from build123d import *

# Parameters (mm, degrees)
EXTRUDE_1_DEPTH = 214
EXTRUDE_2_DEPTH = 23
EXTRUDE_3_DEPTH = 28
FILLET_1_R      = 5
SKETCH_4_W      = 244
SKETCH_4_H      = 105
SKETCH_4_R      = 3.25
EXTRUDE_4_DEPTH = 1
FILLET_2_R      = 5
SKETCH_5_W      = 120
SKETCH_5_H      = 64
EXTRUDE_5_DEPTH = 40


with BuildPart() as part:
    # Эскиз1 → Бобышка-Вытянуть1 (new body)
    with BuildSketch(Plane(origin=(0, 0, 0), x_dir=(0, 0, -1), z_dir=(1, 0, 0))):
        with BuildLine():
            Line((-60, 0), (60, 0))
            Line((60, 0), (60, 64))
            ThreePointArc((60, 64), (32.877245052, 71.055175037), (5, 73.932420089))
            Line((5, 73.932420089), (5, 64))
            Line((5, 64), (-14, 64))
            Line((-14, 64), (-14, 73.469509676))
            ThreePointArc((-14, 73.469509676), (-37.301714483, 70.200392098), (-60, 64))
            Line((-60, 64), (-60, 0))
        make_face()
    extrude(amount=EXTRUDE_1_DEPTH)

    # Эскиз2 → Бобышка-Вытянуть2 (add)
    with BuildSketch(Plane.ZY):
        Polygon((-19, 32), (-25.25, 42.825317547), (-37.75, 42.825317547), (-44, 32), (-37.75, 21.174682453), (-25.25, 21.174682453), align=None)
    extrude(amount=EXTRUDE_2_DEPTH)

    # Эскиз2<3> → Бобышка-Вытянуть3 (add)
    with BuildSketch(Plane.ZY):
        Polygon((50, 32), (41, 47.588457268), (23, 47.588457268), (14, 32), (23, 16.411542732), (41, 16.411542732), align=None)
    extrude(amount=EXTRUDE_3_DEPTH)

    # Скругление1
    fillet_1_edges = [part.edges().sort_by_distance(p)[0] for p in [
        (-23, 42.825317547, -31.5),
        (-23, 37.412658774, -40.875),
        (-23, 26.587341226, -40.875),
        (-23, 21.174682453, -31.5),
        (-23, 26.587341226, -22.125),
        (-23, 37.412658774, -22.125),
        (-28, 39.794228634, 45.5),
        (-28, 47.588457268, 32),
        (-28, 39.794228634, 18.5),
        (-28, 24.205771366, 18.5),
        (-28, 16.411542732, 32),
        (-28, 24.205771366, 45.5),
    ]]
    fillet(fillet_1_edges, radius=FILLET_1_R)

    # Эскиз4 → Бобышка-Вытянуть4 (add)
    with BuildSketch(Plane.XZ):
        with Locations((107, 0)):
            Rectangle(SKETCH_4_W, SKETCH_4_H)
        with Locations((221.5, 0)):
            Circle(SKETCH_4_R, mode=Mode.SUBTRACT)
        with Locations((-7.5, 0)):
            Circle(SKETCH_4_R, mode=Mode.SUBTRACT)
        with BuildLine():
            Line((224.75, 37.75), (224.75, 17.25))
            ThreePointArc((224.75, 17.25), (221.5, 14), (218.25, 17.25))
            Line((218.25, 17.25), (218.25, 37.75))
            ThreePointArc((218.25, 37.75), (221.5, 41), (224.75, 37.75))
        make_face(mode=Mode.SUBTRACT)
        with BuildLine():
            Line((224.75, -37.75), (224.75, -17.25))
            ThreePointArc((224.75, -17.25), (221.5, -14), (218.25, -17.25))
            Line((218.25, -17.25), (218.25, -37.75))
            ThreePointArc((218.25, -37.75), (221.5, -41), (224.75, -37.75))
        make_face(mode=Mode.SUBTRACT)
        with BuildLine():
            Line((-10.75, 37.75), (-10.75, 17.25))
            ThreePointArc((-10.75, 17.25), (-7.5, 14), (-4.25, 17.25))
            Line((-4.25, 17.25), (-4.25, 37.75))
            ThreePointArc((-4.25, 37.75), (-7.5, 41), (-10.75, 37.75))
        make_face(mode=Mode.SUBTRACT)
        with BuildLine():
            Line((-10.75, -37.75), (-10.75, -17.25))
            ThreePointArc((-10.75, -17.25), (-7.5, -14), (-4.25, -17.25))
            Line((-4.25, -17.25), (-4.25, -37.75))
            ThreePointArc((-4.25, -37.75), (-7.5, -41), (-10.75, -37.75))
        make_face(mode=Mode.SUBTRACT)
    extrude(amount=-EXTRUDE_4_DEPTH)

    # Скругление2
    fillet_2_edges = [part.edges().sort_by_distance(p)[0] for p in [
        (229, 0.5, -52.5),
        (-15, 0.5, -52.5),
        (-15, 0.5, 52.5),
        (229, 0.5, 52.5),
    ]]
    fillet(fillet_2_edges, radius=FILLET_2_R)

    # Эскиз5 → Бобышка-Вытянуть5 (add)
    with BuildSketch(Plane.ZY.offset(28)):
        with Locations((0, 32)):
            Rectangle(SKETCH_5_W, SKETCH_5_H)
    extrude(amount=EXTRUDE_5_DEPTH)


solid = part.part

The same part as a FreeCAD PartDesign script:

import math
import FreeCAD as App
import Part
import Sketcher
from FreeCAD import Vector
Q = App.Units.Quantity


def edges_at(feature, points):
    """Names of the edges that pass closest to the given points."""
    edges = feature.Shape.Edges
    near = lambda p: min(range(len(edges)), key=lambda i: edges[i].distToShape(Part.Vertex(*p))[0])
    return sorted({f"Edge{near(p) + 1}" for p in points})

doc = App.newDocument("Part")
body = doc.addObject("PartDesign::Body", "Body")

# Sketch on YZ plane
sketch1 = doc.addObject("Sketcher::SketchObject", "Sketch")
body.addObject(sketch1)
sketch1.AttachmentSupport = (doc.YZ_Plane, [""])
sketch1.MapMode = "FlatFace"
sketch1.addGeometry([
    Part.LineSegment(Vector(0, 60, 0), Vector(0, -60, 0)),  # 0
    Part.LineSegment(Vector(0, -60, 0), Vector(64, -60, 0)),  # 1
    Part.ArcOfCircle(Part.Circle(Vector(-111, 0, 0), Vector(0, 0, 1), 185), math.radians(-18.924644), math.radians(-1.548723)),  # 2
    Part.LineSegment(Vector(73.93242, -5, 0), Vector(64, -5, 0)),  # 3
    Part.LineSegment(Vector(64, -5, 0), Vector(64, 14, 0)),  # 4
    Part.LineSegment(Vector(64, 14, 0), Vector(73.46951, 14, 0)),  # 5
    Part.ArcOfCircle(Part.Circle(Vector(-111, 0, 0), Vector(0, 0, 1), 185), math.radians(4.340046), math.radians(18.924644)),  # 6
    Part.LineSegment(Vector(64, 60, 0), Vector(0, 60, 0)),  # 7
], False)
sketch1.addConstraint([
    Sketcher.Constraint("Coincident", 0, 2, 1, 1),
    Sketcher.Constraint("Coincident", 1, 2, 2, 1),
    Sketcher.Constraint("Coincident", 2, 2, 3, 1),
    Sketcher.Constraint("Coincident", 3, 2, 4, 1),
    Sketcher.Constraint("Coincident", 4, 2, 5, 1),
    Sketcher.Constraint("Coincident", 5, 2, 6, 1),
    Sketcher.Constraint("Coincident", 6, 2, 7, 1),
    Sketcher.Constraint("Coincident", 7, 2, 0, 1),
    Sketcher.Constraint("Vertical", 0),
    Sketcher.Constraint("Horizontal", 1),
    Sketcher.Constraint("Horizontal", 3),
    Sketcher.Constraint("Vertical", 4),
    Sketcher.Constraint("Horizontal", 5),
    Sketcher.Constraint("Horizontal", 7),
    Sketcher.Constraint("Coincident", 6, 3, 2, 3),
    Sketcher.Constraint("Equal", 2, 6),
    Sketcher.Constraint("Symmetric", 0, 2, 7, 2, -1, 1),
    Sketcher.Constraint("PointOnObject", 2, 3, -1),
    Sketcher.Constraint("Vertical", 1, 2, 3, 2),
    Sketcher.Constraint("Radius", 2, 185.0),
    Sketcher.Constraint("DistanceX", 1, 1, 1, 2, 64.0),
    Sketcher.Constraint("DistanceY", 0, 2, 0, 1, 120.0),
    Sketcher.Constraint("DistanceY", 4, 1, 4, 2, 19.0),
    Sketcher.Constraint("DistanceY", 2, 2, -1, 1, 5.0),
])
pad1 = doc.addObject("PartDesign::Pad", "Pad")
body.addObject(pad1)
pad1.Profile = sketch1
pad1.Length = 214

# Sketch on YZ plane
sketch2 = doc.addObject("Sketcher::SketchObject", "Sketch001")
body.addObject(sketch2)
sketch2.AttachmentSupport = (doc.YZ_Plane, [""])
sketch2.MapMode = "FlatFace"
sketch2.addGeometry([
    Part.LineSegment(Vector(32, -19, 0), Vector(42.825318, -25.25, 0)),  # 0
    Part.LineSegment(Vector(42.825318, -25.25, 0), Vector(42.825318, -37.75, 0)),  # 1
    Part.LineSegment(Vector(42.825318, -37.75, 0), Vector(32, -44, 0)),  # 2
    Part.LineSegment(Vector(32, -44, 0), Vector(21.174682, -37.75, 0)),  # 3
    Part.LineSegment(Vector(21.174682, -37.75, 0), Vector(21.174682, -25.25, 0)),  # 4
    Part.LineSegment(Vector(21.174682, -25.25, 0), Vector(32, -19, 0)),  # 5
], False)
sketch2.addConstraint([
    Sketcher.Constraint("Coincident", 0, 2, 1, 1),
    Sketcher.Constraint("Coincident", 1, 2, 2, 1),
    Sketcher.Constraint("Coincident", 2, 2, 3, 1),
    Sketcher.Constraint("Coincident", 3, 2, 4, 1),
    Sketcher.Constraint("Coincident", 4, 2, 5, 1),
    Sketcher.Constraint("Coincident", 5, 2, 0, 1),
    Sketcher.Constraint("Vertical", 1),
    Sketcher.Constraint("Vertical", 4),
    Sketcher.Constraint("Parallel", 0, 3),
    Sketcher.Constraint("Parallel", 2, 5),
    Sketcher.Constraint("Horizontal", 1, 2, 3, 2),
    Sketcher.Constraint("Horizontal", 0, 2, 4, 2),
    Sketcher.Constraint("Vertical", 2, 2, 5, 2),
    Sketcher.Constraint("Angle", 0, Q("-30 deg")),
    Sketcher.Constraint("DistanceY", 1, 2, 1, 1, 12.5),
    Sketcher.Constraint("DistanceX", -1, 1, 2, 2, 32.0),
    Sketcher.Constraint("DistanceY", 2, 2, -1, 1, 44.0),
    Sketcher.Constraint("DistanceY", 5, 2, -1, 1, 19.0),
])
pad2 = doc.addObject("PartDesign::Pad", "Pad001")
body.addObject(pad2)
pad2.Profile = sketch2
pad2.Length = 23
pad2.Reversed = True

# Sketch on YZ plane
sketch3 = doc.addObject("Sketcher::SketchObject", "Sketch002")
body.addObject(sketch3)
sketch3.AttachmentSupport = (doc.YZ_Plane, [""])
sketch3.MapMode = "FlatFace"
sketch3.addGeometry([
    Part.LineSegment(Vector(32, 50, 0), Vector(47.588457, 41, 0)),  # 0
    Part.LineSegment(Vector(47.588457, 41, 0), Vector(47.588457, 23, 0)),  # 1
    Part.LineSegment(Vector(47.588457, 23, 0), Vector(32, 14, 0)),  # 2
    Part.LineSegment(Vector(32, 14, 0), Vector(16.411543, 23, 0)),  # 3
    Part.LineSegment(Vector(16.411543, 23, 0), Vector(16.411543, 41, 0)),  # 4
    Part.LineSegment(Vector(16.411543, 41, 0), Vector(32, 50, 0)),  # 5
], False)
sketch3.addConstraint([
    Sketcher.Constraint("Coincident", 0, 2, 1, 1),
    Sketcher.Constraint("Coincident", 1, 2, 2, 1),
    Sketcher.Constraint("Coincident", 2, 2, 3, 1),
    Sketcher.Constraint("Coincident", 3, 2, 4, 1),
    Sketcher.Constraint("Coincident", 4, 2, 5, 1),
    Sketcher.Constraint("Coincident", 5, 2, 0, 1),
    Sketcher.Constraint("Vertical", 1),
    Sketcher.Constraint("Vertical", 4),
    Sketcher.Constraint("Parallel", 0, 3),
    Sketcher.Constraint("Parallel", 2, 5),
    Sketcher.Constraint("Horizontal", 1, 2, 3, 2),
    Sketcher.Constraint("Horizontal", 0, 2, 4, 2),
    Sketcher.Constraint("Vertical", 2, 2, 5, 2),
    Sketcher.Constraint("DistanceY", 1, 2, 1, 1, 18.0),
    Sketcher.Constraint("Angle", 0, Q("-30 deg")),
    Sketcher.Constraint("Distance", 0, 18.0),
    Sketcher.Constraint("DistanceY", -1, 1, 0, 2, 41.0),
    Sketcher.Constraint("DistanceX", -1, 1, 2, 2, 32.0),
])
pad3 = doc.addObject("PartDesign::Pad", "Pad002")
body.addObject(pad3)
pad3.Profile = sketch3
pad3.Length = 28
pad3.Reversed = True
doc.recompute()

fillet = doc.addObject("PartDesign::Fillet", "Fillet")
body.addObject(fillet)
fillet.Base = (pad3, edges_at(pad3, [
    (-23, 42.825, -31.5),
    (-23, 37.413, -40.875),
    (-23, 26.587, -40.875),
    (-23, 21.175, -31.5),
    (-23, 26.587, -22.125),
    (-23, 37.413, -22.125),
    (-28, 39.794, 45.5),
    (-28, 47.588, 32),
    (-28, 39.794, 18.5),
    (-28, 24.206, 18.5),
    (-28, 16.412, 32),
    (-28, 24.206, 45.5),
]))
fillet.Radius = 5

# Sketch on XZ plane
sketch4 = doc.addObject("Sketcher::SketchObject", "Sketch003")
body.addObject(sketch4)
sketch4.AttachmentSupport = (doc.XZ_Plane, [""])
sketch4.MapMode = "FlatFace"
sketch4.addGeometry([
    Part.LineSegment(Vector(-15, 52.5, 0), Vector(-15, -52.5, 0)),  # 0
    Part.LineSegment(Vector(-15, -52.5, 0), Vector(229, -52.5, 0)),  # 1
    Part.LineSegment(Vector(229, -52.5, 0), Vector(229, 52.5, 0)),  # 2
    Part.LineSegment(Vector(229, 52.5, 0), Vector(-15, 52.5, 0)),  # 3
    Part.ArcOfCircle(Part.Circle(Vector(-7.5, -37.75, 0), Vector(0, 0, 1), 3.25), math.radians(180), math.radians(360)),  # 4
    Part.LineSegment(Vector(-10.75, -37.75, 0), Vector(-10.75, -17.25, 0)),  # 5
    Part.ArcOfCircle(Part.Circle(Vector(-7.5, -17.25, 0), Vector(0, 0, 1), 3.25), math.radians(0), math.radians(180)),  # 6
    Part.LineSegment(Vector(-4.25, -17.25, 0), Vector(-4.25, -37.75, 0)),  # 7
    Part.LineSegment(Vector(224.75, -17.25, 0), Vector(224.75, -37.75, 0)),  # 8
    Part.ArcOfCircle(Part.Circle(Vector(221.5, -37.75, 0), Vector(0, 0, 1), 3.25), math.radians(180), math.radians(360)),  # 9
    Part.LineSegment(Vector(218.25, -37.75, 0), Vector(218.25, -17.25, 0)),  # 10
    Part.ArcOfCircle(Part.Circle(Vector(221.5, -17.25, 0), Vector(0, 0, 1), 3.25), math.radians(0), math.radians(180)),  # 11
    Part.Circle(Vector(-7.5, 0, 0), Vector(0, 0, 1), 3.25),  # 12
    Part.LineSegment(Vector(-10.75, 17.25, 0), Vector(-10.75, 37.75, 0)),  # 13
    Part.ArcOfCircle(Part.Circle(Vector(-7.5, 37.75, 0), Vector(0, 0, 1), 3.25), math.radians(0), math.radians(180)),  # 14
    Part.LineSegment(Vector(-4.25, 37.75, 0), Vector(-4.25, 17.25, 0)),  # 15
    Part.ArcOfCircle(Part.Circle(Vector(-7.5, 17.25, 0), Vector(0, 0, 1), 3.25), math.radians(180), math.radians(360)),  # 16
    Part.Circle(Vector(221.5, 0, 0), Vector(0, 0, 1), 3.25),  # 17
    Part.ArcOfCircle(Part.Circle(Vector(221.5, 37.75, 0), Vector(0, 0, 1), 3.25), math.radians(0), math.radians(180)),  # 18
    Part.LineSegment(Vector(224.75, 37.75, 0), Vector(224.75, 17.25, 0)),  # 19
    Part.ArcOfCircle(Part.Circle(Vector(221.5, 17.25, 0), Vector(0, 0, 1), 3.25), math.radians(180), math.radians(360)),  # 20
    Part.LineSegment(Vector(218.25, 17.25, 0), Vector(218.25, 37.75, 0)),  # 21
], False)
sketch4.addConstraint([
    Sketcher.Constraint("Coincident", 0, 2, 1, 1),
    Sketcher.Constraint("Coincident", 1, 2, 2, 1),
    Sketcher.Constraint("Coincident", 2, 2, 3, 1),
    Sketcher.Constraint("Coincident", 3, 2, 0, 1),
    Sketcher.Constraint("Tangent", 4, 1, 5, 1),
    Sketcher.Constraint("Tangent", 5, 2, 6, 2),
    Sketcher.Constraint("Tangent", 6, 1, 7, 1),
    Sketcher.Constraint("Tangent", 7, 2, 4, 2),
    Sketcher.Constraint("Tangent", 8, 2, 9, 2),
    Sketcher.Constraint("Tangent", 9, 1, 10, 1),
    Sketcher.Constraint("Tangent", 10, 2, 11, 2),
    Sketcher.Constraint("Tangent", 11, 1, 8, 1),
    Sketcher.Constraint("Tangent", 13, 2, 14, 2),
    Sketcher.Constraint("Tangent", 14, 1, 15, 1),
    Sketcher.Constraint("Tangent", 15, 2, 16, 2),
    Sketcher.Constraint("Tangent", 16, 1, 13, 1),
    Sketcher.Constraint("Tangent", 18, 1, 19, 1),
    Sketcher.Constraint("Tangent", 19, 2, 20, 2),
    Sketcher.Constraint("Tangent", 20, 1, 21, 1),
    Sketcher.Constraint("Tangent", 21, 2, 18, 2),
    Sketcher.Constraint("Vertical", 0),
    Sketcher.Constraint("Horizontal", 1),
    Sketcher.Constraint("Vertical", 2),
    Sketcher.Constraint("Horizontal", 3),
    Sketcher.Constraint("Vertical", 5),
    Sketcher.Constraint("Vertical", 7),
    Sketcher.Constraint("Vertical", 8),
    Sketcher.Constraint("Vertical", 10),
    Sketcher.Constraint("Vertical", 13),
    Sketcher.Constraint("Vertical", 15),
    Sketcher.Constraint("Vertical", 19),
    Sketcher.Constraint("Vertical", 21),
    Sketcher.Constraint("Equal", 6, 9),
    Sketcher.Constraint("Equal", 11, 12),
    Sketcher.Constraint("Equal", 12, 14),
    Sketcher.Constraint("Equal", 16, 17),
    Sketcher.Constraint("Equal", 17, 18),
    Sketcher.Constraint("Symmetric", 4, 3, 14, 3, -1),
    Sketcher.Constraint("Symmetric", 9, 3, 18, 3, -1),
    Sketcher.Constraint("PointOnObject", 12, 3, -1),
    Sketcher.Constraint("PointOnObject", 17, 3, -1),
    Sketcher.Constraint("Horizontal", 4, 3, 9, 3),
    Sketcher.Constraint("Horizontal", 6, 3, 11, 3),
    Sketcher.Constraint("Horizontal", 16, 3, 20, 3),
    Sketcher.Constraint("Vertical", 6, 3, 12, 3),
    Sketcher.Constraint("Vertical", 11, 3, 17, 3),
    Sketcher.Constraint("Equal", 10, 13),
    Sketcher.Constraint("Diameter", 12, 6.5),
    Sketcher.Constraint("DistanceX", 1, 1, 1, 2, 244.0),
    Sketcher.Constraint("DistanceY", 0, 2, 0, 1, 105.0),
    Sketcher.Constraint("DistanceY", 5, 1, 5, 2, 20.5),
    Sketcher.Constraint("DistanceX", 0, 2, -1, 1, 15.0),
    Sketcher.Constraint("DistanceX", 4, 3, 9, 3, 229.0),
    Sketcher.Constraint("DistanceY", 6, 3, 14, 3, 55.0),
    Sketcher.Constraint("DistanceX", 4, 3, -1, 1, 7.5),
    Sketcher.Constraint("DistanceY", 0, 2, -1, 1, 52.5),
])
pad4 = doc.addObject("PartDesign::Pad", "Pad003")
body.addObject(pad4)
pad4.Profile = sketch4
pad4.Length = 1
pad4.Reversed = True
doc.recompute()

fillet2 = doc.addObject("PartDesign::Fillet", "Fillet001")
body.addObject(fillet2)
fillet2.Base = (pad4, edges_at(pad4, [
    (229, 0.5, -52.5),
    (-15, 0.5, -52.5),
    (-15, 0.5, 52.5),
    (229, 0.5, 52.5),
]))
fillet2.Radius = 5

# Sketch on YZ plane
sketch5 = doc.addObject("Sketcher::SketchObject", "Sketch004")
body.addObject(sketch5)
sketch5.AttachmentSupport = (doc.YZ_Plane, [""])
sketch5.MapMode = "FlatFace"
sketch5.AttachmentOffset = App.Placement(Vector(0, 0, -28), App.Rotation())
sketch5.addGeometry([
    Part.LineSegment(Vector(64, -60, 0), Vector(0, -60, 0)),
    Part.LineSegment(Vector(0, -60, 0), Vector(0, 60, 0)),
    Part.LineSegment(Vector(0, 60, 0), Vector(64, 60, 0)),
    Part.LineSegment(Vector(64, 60, 0), Vector(64, -60, 0)),
], False)
sketch5.addConstraint([
    Sketcher.Constraint("Coincident", 0, 2, 1, 1),
    Sketcher.Constraint("Coincident", 1, 2, 2, 1),
    Sketcher.Constraint("Coincident", 2, 2, 3, 1),
    Sketcher.Constraint("Coincident", 3, 2, 0, 1),
    Sketcher.Constraint("Horizontal", 0),
    Sketcher.Constraint("Vertical", 1),
    Sketcher.Constraint("Horizontal", 2),
    Sketcher.Constraint("Vertical", 3),
    Sketcher.Constraint("Symmetric", 0, 2, 1, 2, -1, 1),
    Sketcher.Constraint("DistanceX", 0, 2, 0, 1, 64.0),
    Sketcher.Constraint("DistanceY", 1, 1, 1, 2, 120.0),
])
pad5 = doc.addObject("PartDesign::Pad", "Pad004")
body.addObject(pad5)
pad5.Profile = sketch5
pad5.Length = 40
pad5.Reversed = True

doc.recompute()
